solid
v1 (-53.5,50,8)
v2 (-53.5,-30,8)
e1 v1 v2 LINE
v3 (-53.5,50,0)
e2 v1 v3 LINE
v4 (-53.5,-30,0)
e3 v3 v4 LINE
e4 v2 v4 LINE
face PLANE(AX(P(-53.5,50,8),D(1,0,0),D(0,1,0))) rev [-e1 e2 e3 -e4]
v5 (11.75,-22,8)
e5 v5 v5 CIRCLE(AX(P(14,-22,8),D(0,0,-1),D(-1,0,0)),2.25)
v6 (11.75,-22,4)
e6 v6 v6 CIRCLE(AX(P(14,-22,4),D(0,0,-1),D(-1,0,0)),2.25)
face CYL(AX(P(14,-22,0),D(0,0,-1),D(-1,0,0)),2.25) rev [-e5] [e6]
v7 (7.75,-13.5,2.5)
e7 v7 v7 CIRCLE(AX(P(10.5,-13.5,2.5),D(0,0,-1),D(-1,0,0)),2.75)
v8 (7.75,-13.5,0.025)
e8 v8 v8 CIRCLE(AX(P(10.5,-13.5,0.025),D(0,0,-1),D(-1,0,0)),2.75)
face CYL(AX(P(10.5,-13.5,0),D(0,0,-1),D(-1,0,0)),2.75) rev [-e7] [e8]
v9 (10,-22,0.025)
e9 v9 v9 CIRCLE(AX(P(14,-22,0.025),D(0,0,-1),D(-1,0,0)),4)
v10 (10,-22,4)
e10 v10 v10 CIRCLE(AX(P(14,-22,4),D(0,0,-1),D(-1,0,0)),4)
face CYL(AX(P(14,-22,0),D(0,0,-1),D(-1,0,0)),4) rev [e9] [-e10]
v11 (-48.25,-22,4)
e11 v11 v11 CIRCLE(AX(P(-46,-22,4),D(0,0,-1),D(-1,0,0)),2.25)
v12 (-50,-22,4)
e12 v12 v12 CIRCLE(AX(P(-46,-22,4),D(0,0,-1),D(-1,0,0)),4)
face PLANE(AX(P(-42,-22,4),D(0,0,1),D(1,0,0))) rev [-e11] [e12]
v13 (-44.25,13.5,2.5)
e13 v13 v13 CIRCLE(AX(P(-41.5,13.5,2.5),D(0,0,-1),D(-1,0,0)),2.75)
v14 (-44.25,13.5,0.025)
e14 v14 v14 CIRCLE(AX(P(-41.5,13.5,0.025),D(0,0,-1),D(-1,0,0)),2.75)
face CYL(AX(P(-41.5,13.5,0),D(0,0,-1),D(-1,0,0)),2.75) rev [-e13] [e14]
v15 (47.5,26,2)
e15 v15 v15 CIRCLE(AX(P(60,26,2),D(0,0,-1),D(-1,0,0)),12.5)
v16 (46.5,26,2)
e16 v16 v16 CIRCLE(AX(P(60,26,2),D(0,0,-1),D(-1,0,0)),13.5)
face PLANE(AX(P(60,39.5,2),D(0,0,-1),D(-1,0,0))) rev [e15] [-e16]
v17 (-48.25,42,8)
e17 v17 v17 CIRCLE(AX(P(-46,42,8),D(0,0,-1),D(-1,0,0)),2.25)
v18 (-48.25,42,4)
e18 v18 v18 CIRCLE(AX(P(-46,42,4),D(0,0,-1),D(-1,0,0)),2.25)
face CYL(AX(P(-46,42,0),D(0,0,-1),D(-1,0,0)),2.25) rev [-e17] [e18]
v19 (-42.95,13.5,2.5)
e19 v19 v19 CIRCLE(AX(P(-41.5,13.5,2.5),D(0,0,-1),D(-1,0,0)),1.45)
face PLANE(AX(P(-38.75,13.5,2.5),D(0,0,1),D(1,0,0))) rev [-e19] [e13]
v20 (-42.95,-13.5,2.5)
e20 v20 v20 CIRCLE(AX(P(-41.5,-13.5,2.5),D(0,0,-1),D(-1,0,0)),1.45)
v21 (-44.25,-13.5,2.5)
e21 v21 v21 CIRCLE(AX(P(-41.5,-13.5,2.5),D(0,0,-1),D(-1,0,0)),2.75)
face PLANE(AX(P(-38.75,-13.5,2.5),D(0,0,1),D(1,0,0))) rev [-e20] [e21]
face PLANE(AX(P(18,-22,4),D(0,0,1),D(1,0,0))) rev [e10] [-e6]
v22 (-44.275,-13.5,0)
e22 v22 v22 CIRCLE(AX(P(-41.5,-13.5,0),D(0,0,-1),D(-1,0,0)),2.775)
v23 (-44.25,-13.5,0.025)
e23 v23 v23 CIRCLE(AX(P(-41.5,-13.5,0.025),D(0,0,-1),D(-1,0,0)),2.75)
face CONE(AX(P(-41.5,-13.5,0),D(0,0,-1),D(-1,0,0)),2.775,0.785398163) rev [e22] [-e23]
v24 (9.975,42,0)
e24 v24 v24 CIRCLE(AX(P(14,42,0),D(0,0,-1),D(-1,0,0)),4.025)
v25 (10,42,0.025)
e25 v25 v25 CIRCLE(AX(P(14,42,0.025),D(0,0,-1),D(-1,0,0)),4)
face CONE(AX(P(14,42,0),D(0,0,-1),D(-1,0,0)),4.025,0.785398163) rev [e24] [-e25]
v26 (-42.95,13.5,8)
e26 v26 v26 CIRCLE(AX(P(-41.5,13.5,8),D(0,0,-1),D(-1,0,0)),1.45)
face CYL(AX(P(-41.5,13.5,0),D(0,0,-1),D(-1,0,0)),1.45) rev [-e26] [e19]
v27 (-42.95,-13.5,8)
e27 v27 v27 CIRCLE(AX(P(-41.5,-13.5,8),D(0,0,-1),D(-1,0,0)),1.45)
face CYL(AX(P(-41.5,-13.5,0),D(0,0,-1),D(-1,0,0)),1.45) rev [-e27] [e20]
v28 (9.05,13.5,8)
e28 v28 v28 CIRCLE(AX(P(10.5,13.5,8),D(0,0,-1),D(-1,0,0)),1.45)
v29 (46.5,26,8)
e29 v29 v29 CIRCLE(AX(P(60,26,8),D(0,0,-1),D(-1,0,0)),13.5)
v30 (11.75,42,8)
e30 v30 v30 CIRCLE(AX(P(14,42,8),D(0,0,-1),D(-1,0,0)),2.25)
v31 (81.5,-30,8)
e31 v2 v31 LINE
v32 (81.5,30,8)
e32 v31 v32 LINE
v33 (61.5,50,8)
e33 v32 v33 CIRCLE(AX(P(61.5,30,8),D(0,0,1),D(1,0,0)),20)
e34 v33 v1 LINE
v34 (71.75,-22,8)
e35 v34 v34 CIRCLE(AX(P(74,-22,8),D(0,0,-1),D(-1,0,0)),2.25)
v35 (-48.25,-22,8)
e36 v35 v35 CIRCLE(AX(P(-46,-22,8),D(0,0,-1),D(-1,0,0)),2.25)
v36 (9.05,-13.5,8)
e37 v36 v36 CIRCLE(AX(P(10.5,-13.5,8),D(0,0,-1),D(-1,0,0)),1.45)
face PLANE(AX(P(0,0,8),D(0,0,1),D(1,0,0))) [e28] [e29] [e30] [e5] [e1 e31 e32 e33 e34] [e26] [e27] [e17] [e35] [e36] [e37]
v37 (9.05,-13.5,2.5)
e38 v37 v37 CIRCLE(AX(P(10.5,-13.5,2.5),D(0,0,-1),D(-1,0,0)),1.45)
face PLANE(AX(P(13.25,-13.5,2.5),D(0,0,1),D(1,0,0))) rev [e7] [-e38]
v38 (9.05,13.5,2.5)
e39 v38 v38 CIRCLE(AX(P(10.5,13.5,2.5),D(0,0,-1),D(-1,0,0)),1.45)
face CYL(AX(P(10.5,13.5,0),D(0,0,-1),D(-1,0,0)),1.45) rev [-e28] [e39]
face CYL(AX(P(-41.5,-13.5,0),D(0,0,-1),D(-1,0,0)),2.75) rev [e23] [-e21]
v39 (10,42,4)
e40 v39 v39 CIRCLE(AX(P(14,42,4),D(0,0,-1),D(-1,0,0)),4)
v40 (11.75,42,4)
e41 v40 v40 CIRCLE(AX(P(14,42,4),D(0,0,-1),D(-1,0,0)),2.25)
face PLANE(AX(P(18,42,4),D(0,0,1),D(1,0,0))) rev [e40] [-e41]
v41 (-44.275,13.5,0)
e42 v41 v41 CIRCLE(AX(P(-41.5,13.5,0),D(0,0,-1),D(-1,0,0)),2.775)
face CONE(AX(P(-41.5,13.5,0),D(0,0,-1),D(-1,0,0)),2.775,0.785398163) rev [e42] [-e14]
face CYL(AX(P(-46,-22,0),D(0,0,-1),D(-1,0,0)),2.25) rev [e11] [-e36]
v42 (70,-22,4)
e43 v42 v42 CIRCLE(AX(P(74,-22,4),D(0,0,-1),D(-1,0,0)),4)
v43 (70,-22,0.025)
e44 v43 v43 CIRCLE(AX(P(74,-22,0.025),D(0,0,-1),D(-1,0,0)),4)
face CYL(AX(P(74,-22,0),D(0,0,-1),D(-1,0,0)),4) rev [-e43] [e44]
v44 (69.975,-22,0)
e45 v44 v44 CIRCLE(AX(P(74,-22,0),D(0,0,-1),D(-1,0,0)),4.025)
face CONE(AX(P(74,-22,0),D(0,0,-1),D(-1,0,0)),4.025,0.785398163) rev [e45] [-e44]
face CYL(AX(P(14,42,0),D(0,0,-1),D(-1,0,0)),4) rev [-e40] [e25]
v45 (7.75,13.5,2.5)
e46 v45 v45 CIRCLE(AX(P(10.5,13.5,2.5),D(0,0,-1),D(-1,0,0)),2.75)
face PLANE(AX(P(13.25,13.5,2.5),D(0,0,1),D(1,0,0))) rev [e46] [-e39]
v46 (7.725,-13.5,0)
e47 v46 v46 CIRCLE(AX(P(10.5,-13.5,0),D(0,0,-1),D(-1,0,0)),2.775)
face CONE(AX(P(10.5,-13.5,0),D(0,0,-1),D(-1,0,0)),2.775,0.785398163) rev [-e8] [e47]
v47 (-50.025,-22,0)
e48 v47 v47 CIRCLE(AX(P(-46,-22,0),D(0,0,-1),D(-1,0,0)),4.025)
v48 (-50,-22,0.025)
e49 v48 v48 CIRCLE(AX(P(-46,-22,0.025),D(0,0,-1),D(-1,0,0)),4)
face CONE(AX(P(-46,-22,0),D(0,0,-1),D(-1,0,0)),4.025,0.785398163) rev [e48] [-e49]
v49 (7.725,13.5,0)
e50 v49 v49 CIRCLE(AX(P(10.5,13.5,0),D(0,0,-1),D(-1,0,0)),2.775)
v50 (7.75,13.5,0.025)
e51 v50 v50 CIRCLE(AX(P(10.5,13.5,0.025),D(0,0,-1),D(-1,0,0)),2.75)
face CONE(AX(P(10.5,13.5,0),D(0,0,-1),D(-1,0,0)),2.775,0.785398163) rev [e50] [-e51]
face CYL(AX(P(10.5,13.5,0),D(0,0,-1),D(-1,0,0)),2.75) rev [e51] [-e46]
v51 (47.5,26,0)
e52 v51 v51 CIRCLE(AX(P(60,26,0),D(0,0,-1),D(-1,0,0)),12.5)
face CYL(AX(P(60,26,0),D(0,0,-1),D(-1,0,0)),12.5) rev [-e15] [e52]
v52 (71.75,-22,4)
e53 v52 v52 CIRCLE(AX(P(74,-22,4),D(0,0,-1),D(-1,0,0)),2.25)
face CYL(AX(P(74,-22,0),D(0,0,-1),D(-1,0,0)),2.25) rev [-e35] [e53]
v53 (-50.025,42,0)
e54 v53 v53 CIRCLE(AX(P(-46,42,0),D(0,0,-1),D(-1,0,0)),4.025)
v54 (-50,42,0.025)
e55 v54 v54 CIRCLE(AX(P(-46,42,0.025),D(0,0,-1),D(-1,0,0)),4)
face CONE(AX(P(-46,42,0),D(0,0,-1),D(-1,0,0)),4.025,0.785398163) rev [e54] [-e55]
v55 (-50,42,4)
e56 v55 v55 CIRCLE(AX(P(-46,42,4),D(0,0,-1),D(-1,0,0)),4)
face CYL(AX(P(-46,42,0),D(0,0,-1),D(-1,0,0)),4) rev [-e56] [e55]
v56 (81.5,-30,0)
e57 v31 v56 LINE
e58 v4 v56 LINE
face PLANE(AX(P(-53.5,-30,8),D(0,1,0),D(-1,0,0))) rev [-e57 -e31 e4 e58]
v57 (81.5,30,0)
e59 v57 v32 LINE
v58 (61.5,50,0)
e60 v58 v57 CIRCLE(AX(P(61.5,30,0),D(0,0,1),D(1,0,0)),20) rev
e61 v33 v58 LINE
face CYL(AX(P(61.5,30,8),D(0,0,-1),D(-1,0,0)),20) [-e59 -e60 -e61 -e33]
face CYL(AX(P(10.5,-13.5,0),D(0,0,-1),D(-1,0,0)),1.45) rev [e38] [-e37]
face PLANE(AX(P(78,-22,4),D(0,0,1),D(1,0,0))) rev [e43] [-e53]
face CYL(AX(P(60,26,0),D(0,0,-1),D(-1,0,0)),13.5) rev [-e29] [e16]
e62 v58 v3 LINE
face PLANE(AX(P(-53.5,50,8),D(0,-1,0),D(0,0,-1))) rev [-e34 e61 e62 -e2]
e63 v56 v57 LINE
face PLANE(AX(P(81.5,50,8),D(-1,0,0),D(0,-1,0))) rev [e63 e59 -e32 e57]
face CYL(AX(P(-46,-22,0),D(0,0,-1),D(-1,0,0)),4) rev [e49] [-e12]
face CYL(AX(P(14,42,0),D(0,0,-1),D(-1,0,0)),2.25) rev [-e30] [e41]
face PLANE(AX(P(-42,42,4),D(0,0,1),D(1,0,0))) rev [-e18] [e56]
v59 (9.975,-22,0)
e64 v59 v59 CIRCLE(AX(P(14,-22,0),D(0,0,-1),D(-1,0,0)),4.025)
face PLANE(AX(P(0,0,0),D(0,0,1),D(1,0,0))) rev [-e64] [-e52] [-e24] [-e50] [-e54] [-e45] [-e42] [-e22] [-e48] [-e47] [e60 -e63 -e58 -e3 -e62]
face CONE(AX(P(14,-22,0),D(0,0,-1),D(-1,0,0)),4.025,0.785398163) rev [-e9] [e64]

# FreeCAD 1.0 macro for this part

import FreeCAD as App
import Part
import Sketcher

V = App.Vector
Q = App.Units.Quantity


def edges_at(feature, points):
    """Names of the edges that pass closest to the given points."""
    edges = feature.Shape.Edges
    near = lambda p: min(range(len(edges)), key=lambda i: edges[i].distToShape(Part.Vertex(*p))[0])
    return sorted({f"Edge{near(p) + 1}" for p in points})


def add_polygon(sketch, points):
    """Adds a closed chain of lines whose ends are joined by coincident constraints."""
    first, n = sketch.GeometryCount, len(points)
    for a, b in zip(points, points[1:] + points[:1]):
        sketch.addGeometry(Part.LineSegment(App.Vector(*a, 0), App.Vector(*b, 0)), False)
    for i in range(n):
        sketch.addConstraint(Sketcher.Constraint("Coincident", first + i, 2, first + (i + 1) % n, 1))

doc = App.newDocument("Part")
body = doc.addObject("PartDesign::Body", "Body")

sketch1 = doc.addObject("Sketcher::SketchObject", "Sketch")
body.addObject(sketch1)
sketch1.AttachmentSupport = (doc.XY_Plane, [""])
sketch1.MapMode = "FlatFace"
add_polygon(sketch1, [(-54, 50), (-54, -30), (82, -30), (82, 50)])
sketch1.addConstraint([
    Sketcher.Constraint("Vertical", 0),
    Sketcher.Constraint("Horizontal", 1),
    Sketcher.Constraint("Vertical", 2),
    Sketcher.Constraint("Horizontal", 3),
    Sketcher.Constraint("DistanceX", 1, 1, 1, 2, Q("135 mm")),
    Sketcher.Constraint("DistanceY", 0, 2, 0, 1, Q("80 mm")),
    Sketcher.Constraint("DistanceY", 0, 2, -1, 1, Q("30 mm")),
    Sketcher.Constraint("DistanceX", 0, 2, -1, 1, Q("53.5 mm")),
])
pad1 = doc.addObject("PartDesign::Pad", "Pad")
body.addObject(pad1)
pad1.Profile = sketch1
pad1.Length = 8

sketch2 = doc.addObject("Sketcher::SketchObject", "Sketch001")
body.addObject(sketch2)
sketch2.AttachmentSupport = (doc.YZ_Plane, [""])
sketch2.MapMode = "FlatFace"
sketch2.AttachmentOffset = App.Placement(V(0, 0, 10.5), App.Rotation())
add_polygon(sketch2, [(13.5, 8), (13.5, 0), (16.275, 0), (16.25, 0.025), (16.25, 2.5), (14.95, 2.5), (14.95, 8)])
sketch2.addGeometry(Part.LineSegment(V(13.5, 0, 0), V(13.5, 8, 0)), True)
sketch2.addConstraint([
    Sketcher.Constraint("Vertical", 0),
    Sketcher.Constraint("Horizontal", 1),
    Sketcher.Constraint("Vertical", 3),
    Sketcher.Constraint("Horizontal", 4),
    Sketcher.Constraint("Vertical", 5),
    Sketcher.Constraint("Horizontal", 6),
    Sketcher.Constraint("Vertical", 7),
    Sketcher.Constraint("Coincident", 7, 1, 0, 2),
    Sketcher.Constraint("PointOnObject", 0, 2, -1),
    Sketcher.Constraint("Horizontal", 5, 2, 7, 2),
    Sketcher.Constraint("DistanceY", 0, 2, 0, 1, Q("8 mm")),
    Sketcher.Constraint("Angle", 2, Q("135 deg")),
    Sketcher.Constraint("DistanceX", 4, 2, 4, 1, Q("1.3 mm")),
    Sketcher.Constraint("DistanceY", 5, 1, 5, 2, Q("5.5 mm")),
    Sketcher.Constraint("DistanceX", 6, 2, 6, 1, Q("1.45 mm")),
    Sketcher.Constraint("DistanceX", -1, 1, 0, 2, Q("13.5 mm")),
    Sketcher.Constraint("DistanceX", 1, 1, 1, 2, Q("2.775 mm")),
])
groove = doc.addObject("PartDesign::Groove", "Groove")
body.addObject(groove)
groove.Profile = sketch2
groove.ReferenceAxis = (sketch2, ["Axis0"])
groove.Angle = 360
doc.recompute()

linearpattern = doc.addObject("PartDesign::LinearPattern", "LinearPattern")
body.addObject(linearpattern)
linearpattern.Originals = [groove]
linearpattern.Direction = (doc.Y_Axis, [""])
linearpattern.Mode = "offset"
linearpattern.Offset = 27
linearpattern.Occurrences = 2
linearpattern.Reversed = True
body.Tip = linearpattern
doc.recompute()

datumline = doc.addObject("PartDesign::Line", "DatumLine")
body.addObject(datumline)
datumline.Placement = App.Placement(V(0, 0, 0), App.Rotation(V(0, 0, 1), V(-0.887496077, -0.460815271, 0)))
linearpattern2 = doc.addObject("PartDesign::LinearPattern", "LinearPattern001")
body.addObject(linearpattern2)
linearpattern2.Originals = [groove]
linearpattern2.Direction = (datumline, [""])
linearpattern2.Mode = "offset"
linearpattern2.Offset = 58.591808
linearpattern2.Occurrences = 2
body.Tip = linearpattern2
doc.recompute()

linearpattern3 = doc.addObject("PartDesign::LinearPattern", "LinearPattern002")
body.addObject(linearpattern3)
linearpattern3.Originals = [groove]
linearpattern3.Direction = (doc.X_Axis, [""])
linearpattern3.Mode = "offset"
linearpattern3.Offset = 52
linearpattern3.Occurrences = 2
linearpattern3.Reversed = True
body.Tip = linearpattern3

sketch3 = doc.addObject("Sketcher::SketchObject", "Sketch002")
body.addObject(sketch3)
sketch3.AttachmentSupport = (doc.YZ_Plane, [""])
sketch3.MapMode = "FlatFace"
sketch3.AttachmentOffset = App.Placement(V(0, 0, 60), App.Rotation())
add_polygon(sketch3, [(39.5, 2), (39.5, 8), (26, 8), (26, 0), (38.5, 0), (38.5, 2)])
sketch3.addGeometry(Part.LineSegment(V(26, 0, 0), V(26, 8, 0)), True)
sketch3.addConstraint([
    Sketcher.Constraint("Vertical", 0),
    Sketcher.Constraint("Horizontal", 1),
    Sketcher.Constraint("Vertical", 2),
    Sketcher.Constraint("Horizontal", 3),
    Sketcher.Constraint("Vertical", 4),
    Sketcher.Constraint("Horizontal", 5),
    Sketcher.Constraint("Vertical", 6),
    Sketcher.Constraint("Coincident", 6, 1, 2, 2),
    Sketcher.Constraint("PointOnObject", 2, 2, -1),
    Sketcher.Constraint("Horizontal", 0, 2, 6, 2),
    Sketcher.Constraint("DistanceX", 5, 1, 5, 2, Q("1 mm")),
    Sketcher.Constraint("DistanceY", 0, 1, 0, 2, Q("6 mm")),
    Sketcher.Constraint("DistanceY", 2, 2, 2, 1, Q("8 mm")),
    Sketcher.Constraint("DistanceX", 1, 2, 1, 1, Q("13.5 mm")),
    Sketcher.Constraint("DistanceX", -1, 1, 1, 2, Q("26 mm")),
])
groove2 = doc.addObject("PartDesign::Groove", "Groove001")
body.addObject(groove2)
groove2.Profile = sketch3
groove2.ReferenceAxis = (sketch3, ["Axis0"])
groove2.Angle = 360

sketch4 = doc.addObject("Sketcher::SketchObject", "Sketch003")
body.addObject(sketch4)
sketch4.AttachmentSupport = (doc.YZ_Plane, [""])
sketch4.MapMode = "FlatFace"
sketch4.AttachmentOffset = App.Placement(V(0, 0, -46), App.Rotation())
add_polygon(sketch4, [(-22, 8), (-22, 0), (-17.975, 0), (-18, 0.025), (-18, 4), (-19.75, 4), (-19.75, 8)])
sketch4.addGeometry(Part.LineSegment(V(-22, 0, 0), V(-22, 8, 0)), True)
sketch4.addConstraint([
    Sketcher.Constraint("Vertical", 0),
    Sketcher.Constraint("Horizontal", 1),
    Sketcher.Constraint("Vertical", 3),
    Sketcher.Constraint("Horizontal", 4),
    Sketcher.Constraint("Vertical", 5),
    Sketcher.Constraint("Horizontal", 6),
    Sketcher.Constraint("Vertical", 7),
    Sketcher.Constraint("Coincident", 7, 1, 0, 2),
    Sketcher.Constraint("PointOnObject", 0, 2, -1),
    Sketcher.Constraint("Horizontal", 5, 2, 7, 2),
    Sketcher.Constraint("DistanceY", 0, 2, 0, 1, Q("8 mm")),
    Sketcher.Constraint("DistanceY", 5, 1, 5, 2, Q("4 mm")),
    Sketcher.Constraint("Angle", 2, Q("135 deg")),
    Sketcher.Constraint("DistanceX", 0, 2, -1, 1, Q("22 mm")),
    Sketcher.Constraint("DistanceX", 2, 2, -1, 1, Q("18 mm")),
    Sketcher.Constraint("DistanceX", 4, 2, 4, 1, Q("1.75 mm")),
    Sketcher.Constraint("DistanceX", 1, 1, 1, 2, Q("4.025 mm")),
])
groove3 = doc.addObject("PartDesign::Groove", "Groove002")
body.addObject(groove3)
groove3.Profile = sketch4
groove3.ReferenceAxis = (sketch4, ["Axis0"])
groove3.Angle = 360
doc.recompute()

linearpattern4 = doc.addObject("PartDesign::LinearPattern", "LinearPattern003")
body.addObject(linearpattern4)
linearpattern4.Originals = [groove3]
linearpattern4.Direction = (doc.X_Axis, [""])
linearpattern4.Mode = "offset"
linearpattern4.Offset = 60
linearpattern4.Occurrences = 2
body.Tip = linearpattern4
doc.recompute()

linearpattern5 = doc.addObject("PartDesign::LinearPattern", "LinearPattern004")
body.addObject(linearpattern5)
linearpattern5.Originals = [groove3]
linearpattern5.Direction = (doc.X_Axis, [""])
linearpattern5.Mode = "offset"
linearpattern5.Offset = 120
linearpattern5.Occurrences = 2
body.Tip = linearpattern5
doc.recompute()

linearpattern6 = doc.addObject("PartDesign::LinearPattern", "LinearPattern005")
body.addObject(linearpattern6)
linearpattern6.Originals = [groove3]
linearpattern6.Direction = (doc.Y_Axis, [""])
linearpattern6.Mode = "offset"
linearpattern6.Offset = 64
linearpattern6.Occurrences = 2
body.Tip = linearpattern6
doc.recompute()

datumline2 = doc.addObject("PartDesign::Line", "DatumLine001")
body.addObject(datumline2)
datumline2.Placement = App.Placement(V(0, 0, 0), App.Rotation(V(0, 0, 1), V(0.683941129, 0.729537204, 0)))
linearpattern7 = doc.addObject("PartDesign::LinearPattern", "LinearPattern006")
body.addObject(linearpattern7)
linearpattern7.Originals = [groove3]
linearpattern7.Direction = (datumline2, [""])
linearpattern7.Mode = "offset"
linearpattern7.Offset = 87.726849
linearpattern7.Occurrences = 2
body.Tip = linearpattern7
doc.recompute()

fillet = doc.addObject("PartDesign::Fillet", "Fillet")
body.addObject(fillet)
fillet.Base = (linearpattern7, edges_at(linearpattern7, [(81.5, 50, 4)]))
fillet.Radius = 20

doc.recompute()
